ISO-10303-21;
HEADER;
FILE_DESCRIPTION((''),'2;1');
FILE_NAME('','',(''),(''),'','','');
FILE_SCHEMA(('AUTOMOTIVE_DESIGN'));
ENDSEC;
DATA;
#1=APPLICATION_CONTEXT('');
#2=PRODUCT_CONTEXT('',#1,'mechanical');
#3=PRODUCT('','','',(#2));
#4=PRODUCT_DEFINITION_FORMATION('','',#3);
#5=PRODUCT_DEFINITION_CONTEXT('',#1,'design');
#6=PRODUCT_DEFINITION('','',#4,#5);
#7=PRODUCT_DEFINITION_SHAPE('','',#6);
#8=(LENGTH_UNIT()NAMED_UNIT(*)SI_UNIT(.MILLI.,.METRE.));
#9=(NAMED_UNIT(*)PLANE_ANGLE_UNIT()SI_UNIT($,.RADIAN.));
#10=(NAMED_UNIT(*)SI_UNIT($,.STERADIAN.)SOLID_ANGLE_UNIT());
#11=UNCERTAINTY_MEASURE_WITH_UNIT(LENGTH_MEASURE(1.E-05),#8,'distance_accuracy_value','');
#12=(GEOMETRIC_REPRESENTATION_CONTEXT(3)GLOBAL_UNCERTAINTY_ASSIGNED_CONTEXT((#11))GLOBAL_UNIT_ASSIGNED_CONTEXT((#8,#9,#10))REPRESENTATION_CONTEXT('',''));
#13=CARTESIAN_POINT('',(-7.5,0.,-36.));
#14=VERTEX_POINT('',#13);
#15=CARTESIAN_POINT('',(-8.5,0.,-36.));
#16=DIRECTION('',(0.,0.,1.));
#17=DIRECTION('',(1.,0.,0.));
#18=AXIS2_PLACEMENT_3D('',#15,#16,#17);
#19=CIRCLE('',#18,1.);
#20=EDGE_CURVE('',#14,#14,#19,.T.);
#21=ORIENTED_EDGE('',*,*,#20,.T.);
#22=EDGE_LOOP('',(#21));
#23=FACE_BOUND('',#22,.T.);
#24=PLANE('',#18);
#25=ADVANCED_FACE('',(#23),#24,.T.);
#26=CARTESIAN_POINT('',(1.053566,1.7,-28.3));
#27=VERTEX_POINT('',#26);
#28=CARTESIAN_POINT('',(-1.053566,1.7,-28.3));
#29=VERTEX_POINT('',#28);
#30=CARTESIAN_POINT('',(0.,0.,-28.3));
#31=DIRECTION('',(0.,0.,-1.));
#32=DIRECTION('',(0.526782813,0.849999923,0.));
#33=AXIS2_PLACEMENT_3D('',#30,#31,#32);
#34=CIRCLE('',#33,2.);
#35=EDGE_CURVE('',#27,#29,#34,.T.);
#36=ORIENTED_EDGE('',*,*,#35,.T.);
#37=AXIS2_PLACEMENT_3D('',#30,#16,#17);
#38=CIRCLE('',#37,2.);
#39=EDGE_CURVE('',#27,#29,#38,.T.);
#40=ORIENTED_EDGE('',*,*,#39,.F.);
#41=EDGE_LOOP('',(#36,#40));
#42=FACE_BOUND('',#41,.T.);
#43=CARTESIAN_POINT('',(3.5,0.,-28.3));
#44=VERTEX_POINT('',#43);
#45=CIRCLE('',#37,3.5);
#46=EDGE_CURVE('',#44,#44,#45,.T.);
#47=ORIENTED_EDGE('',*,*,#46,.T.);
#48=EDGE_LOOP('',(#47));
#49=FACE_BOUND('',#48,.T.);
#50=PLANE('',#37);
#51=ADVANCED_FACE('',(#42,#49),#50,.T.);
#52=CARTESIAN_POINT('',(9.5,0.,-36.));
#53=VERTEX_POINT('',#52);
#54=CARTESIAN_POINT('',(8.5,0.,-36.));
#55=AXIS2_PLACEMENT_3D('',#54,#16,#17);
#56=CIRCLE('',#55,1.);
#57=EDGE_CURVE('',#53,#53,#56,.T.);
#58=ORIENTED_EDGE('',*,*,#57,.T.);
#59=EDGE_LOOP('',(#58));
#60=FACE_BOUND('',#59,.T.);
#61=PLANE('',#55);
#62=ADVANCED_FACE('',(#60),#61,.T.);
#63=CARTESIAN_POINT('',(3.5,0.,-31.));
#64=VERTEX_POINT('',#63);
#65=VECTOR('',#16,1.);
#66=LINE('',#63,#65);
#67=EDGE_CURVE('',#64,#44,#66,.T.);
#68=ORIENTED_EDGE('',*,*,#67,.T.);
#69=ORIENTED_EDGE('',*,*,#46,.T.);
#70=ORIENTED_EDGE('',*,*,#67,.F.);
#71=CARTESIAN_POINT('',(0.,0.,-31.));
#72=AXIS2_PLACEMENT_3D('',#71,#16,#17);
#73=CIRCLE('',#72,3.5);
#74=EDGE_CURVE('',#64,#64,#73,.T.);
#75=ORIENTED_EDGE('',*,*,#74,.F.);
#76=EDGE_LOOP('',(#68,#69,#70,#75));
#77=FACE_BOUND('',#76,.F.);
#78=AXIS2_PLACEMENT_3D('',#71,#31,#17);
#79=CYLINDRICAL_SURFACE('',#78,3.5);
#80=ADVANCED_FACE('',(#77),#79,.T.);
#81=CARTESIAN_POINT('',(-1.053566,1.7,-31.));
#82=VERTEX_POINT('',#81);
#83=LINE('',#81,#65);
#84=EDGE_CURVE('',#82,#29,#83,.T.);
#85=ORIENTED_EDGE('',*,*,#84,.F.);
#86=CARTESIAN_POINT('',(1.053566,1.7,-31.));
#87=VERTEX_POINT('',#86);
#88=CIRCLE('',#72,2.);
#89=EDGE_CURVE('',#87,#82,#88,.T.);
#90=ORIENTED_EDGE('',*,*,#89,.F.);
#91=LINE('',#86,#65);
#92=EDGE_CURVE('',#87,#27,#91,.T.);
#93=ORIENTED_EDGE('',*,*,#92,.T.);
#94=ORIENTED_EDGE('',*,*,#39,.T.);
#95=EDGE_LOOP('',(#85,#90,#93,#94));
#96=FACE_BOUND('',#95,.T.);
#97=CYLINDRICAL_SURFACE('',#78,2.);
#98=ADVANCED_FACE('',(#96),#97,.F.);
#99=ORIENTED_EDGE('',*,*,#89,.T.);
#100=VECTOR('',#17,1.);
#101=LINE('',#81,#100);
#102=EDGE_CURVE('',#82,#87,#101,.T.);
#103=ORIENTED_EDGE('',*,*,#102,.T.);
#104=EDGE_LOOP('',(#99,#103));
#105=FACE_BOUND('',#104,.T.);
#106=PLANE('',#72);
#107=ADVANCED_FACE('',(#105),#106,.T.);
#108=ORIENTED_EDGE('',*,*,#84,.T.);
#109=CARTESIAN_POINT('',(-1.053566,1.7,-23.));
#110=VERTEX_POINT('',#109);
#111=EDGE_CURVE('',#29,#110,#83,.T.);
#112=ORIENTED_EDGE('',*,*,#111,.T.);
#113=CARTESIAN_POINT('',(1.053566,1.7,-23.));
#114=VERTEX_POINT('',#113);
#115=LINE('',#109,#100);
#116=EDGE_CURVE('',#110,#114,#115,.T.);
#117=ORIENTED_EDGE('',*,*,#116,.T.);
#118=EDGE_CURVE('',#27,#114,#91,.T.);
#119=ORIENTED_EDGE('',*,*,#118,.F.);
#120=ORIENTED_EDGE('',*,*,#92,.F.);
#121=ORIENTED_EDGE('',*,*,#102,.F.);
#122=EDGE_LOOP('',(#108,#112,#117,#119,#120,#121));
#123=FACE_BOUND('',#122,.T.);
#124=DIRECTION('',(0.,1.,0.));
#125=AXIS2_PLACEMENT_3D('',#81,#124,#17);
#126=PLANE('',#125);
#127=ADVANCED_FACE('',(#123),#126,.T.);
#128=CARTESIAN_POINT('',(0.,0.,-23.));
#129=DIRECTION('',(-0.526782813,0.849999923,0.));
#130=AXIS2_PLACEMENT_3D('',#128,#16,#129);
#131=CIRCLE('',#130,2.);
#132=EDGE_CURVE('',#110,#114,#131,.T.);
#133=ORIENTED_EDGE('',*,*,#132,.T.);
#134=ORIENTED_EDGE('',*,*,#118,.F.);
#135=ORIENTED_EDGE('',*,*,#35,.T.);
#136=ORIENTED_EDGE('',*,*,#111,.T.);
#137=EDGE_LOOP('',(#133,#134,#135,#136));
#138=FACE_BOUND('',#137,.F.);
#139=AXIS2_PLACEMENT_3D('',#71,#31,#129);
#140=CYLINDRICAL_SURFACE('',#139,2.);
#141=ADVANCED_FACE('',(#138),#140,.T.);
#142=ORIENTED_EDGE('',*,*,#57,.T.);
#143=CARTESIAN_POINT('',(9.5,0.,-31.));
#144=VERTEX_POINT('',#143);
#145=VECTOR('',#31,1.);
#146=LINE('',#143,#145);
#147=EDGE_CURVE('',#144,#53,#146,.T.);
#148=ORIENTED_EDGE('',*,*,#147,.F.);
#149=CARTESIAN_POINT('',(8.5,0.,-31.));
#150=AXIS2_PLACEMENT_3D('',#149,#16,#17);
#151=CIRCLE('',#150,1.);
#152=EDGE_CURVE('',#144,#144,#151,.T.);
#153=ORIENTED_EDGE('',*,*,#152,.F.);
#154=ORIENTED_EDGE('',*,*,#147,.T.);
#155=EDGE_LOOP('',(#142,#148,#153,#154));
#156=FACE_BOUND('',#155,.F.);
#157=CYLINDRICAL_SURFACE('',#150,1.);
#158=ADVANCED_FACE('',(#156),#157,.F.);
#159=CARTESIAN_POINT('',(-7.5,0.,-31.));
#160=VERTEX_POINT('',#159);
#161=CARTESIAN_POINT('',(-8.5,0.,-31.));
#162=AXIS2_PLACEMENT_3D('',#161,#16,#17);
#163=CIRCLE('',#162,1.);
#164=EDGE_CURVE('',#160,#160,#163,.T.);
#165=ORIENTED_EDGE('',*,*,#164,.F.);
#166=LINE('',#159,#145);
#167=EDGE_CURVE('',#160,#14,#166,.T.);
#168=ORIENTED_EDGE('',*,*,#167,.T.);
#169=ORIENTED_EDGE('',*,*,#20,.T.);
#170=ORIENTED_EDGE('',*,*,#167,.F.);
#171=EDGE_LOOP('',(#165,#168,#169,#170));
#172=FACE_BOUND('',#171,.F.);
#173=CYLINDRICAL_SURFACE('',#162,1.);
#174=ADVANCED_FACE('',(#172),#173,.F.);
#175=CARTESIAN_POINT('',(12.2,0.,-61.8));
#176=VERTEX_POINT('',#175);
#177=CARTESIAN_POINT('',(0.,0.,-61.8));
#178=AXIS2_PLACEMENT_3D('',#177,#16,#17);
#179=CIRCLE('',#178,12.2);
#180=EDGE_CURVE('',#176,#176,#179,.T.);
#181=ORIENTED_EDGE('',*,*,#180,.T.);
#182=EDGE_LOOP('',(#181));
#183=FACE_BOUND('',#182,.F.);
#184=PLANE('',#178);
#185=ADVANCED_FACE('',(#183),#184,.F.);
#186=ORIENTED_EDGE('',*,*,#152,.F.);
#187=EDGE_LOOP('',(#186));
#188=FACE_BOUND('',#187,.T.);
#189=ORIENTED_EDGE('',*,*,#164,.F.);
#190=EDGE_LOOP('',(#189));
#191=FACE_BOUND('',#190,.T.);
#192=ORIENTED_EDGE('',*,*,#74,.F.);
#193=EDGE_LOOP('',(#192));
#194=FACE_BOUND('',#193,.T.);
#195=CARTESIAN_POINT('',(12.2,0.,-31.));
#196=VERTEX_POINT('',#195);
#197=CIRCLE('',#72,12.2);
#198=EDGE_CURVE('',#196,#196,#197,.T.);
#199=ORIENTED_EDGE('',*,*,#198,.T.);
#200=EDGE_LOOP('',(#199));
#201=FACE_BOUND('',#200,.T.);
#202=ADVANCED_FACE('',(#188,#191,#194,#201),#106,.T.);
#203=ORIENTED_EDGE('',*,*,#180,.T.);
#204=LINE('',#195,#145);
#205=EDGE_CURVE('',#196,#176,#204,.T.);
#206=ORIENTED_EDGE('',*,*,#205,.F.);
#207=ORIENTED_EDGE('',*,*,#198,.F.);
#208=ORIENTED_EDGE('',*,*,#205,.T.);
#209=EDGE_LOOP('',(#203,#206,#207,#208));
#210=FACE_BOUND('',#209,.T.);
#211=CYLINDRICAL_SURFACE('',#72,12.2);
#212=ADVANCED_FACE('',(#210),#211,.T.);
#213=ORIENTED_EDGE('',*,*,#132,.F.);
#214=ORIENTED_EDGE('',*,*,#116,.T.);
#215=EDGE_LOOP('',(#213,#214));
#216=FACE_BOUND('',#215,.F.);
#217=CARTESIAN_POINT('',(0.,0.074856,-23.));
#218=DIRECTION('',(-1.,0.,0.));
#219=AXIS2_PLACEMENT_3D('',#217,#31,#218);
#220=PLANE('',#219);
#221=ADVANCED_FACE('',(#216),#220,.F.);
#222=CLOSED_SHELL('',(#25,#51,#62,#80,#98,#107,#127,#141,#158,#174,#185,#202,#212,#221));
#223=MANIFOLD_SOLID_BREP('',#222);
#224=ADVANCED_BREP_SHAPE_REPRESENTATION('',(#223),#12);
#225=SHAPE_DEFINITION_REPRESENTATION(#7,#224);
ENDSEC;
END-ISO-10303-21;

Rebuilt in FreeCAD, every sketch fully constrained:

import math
import FreeCAD as App
import Part
import Sketcher
from FreeCAD import Vector

doc = App.newDocument("Part")
body = doc.addObject("PartDesign::Body", "Body")

sketch1 = doc.addObject("Sketcher::SketchObject", "Sketch")
body.addObject(sketch1)
sketch1.AttachmentSupport = (doc.XY_Plane, [""])
sketch1.MapMode = "FlatFace"
sketch1.addGeometry(Part.Circle(Vector(0, 0, 0), Vector(0, 0, 1), 12), False)
sketch1.addConstraint([
    Sketcher.Constraint("Coincident", 0, 3, -1, 1),
    Sketcher.Constraint("Diameter", 0, 24.4),
])
pad1 = doc.addObject("PartDesign::Pad", "Pad")
body.addObject(pad1)
pad1.Profile = sketch1
pad1.Length = 30.8
pad1.Reversed = True

sketch2 = doc.addObject("Sketcher::SketchObject", "Sketch001")
body.addObject(sketch2)
sketch2.AttachmentSupport = (doc.XY_Plane, [""])
sketch2.MapMode = "FlatFace"
sketch2.addGeometry([
    Part.LineSegment(Vector(1.1, 1.7, 0), Vector(-1.1, 1.7, 0)),
    Part.ArcOfCircle(Part.Circle(Vector(0, 0, 0), Vector(0, 0, 1), 2), math.radians(122), math.radians(418)),
], False)
sketch2.addConstraint([
    Sketcher.Constraint("Coincident", 0, 1, 1, 2),
    Sketcher.Constraint("Coincident", 1, 1, 0, 2),
    Sketcher.Constraint("Horizontal", 0),
    Sketcher.Constraint("Coincident", 1, 3, -1, 1),
    Sketcher.Constraint("Radius", 1, 2.0),
    Sketcher.Constraint("DistanceY", -1, 1, 0, 1, 1.7),
])
pad2 = doc.addObject("PartDesign::Pad", "Pad001")
body.addObject(pad2)
pad2.Profile = sketch2
pad2.Length = 8

sketch3 = doc.addObject("Sketcher::SketchObject", "Sketch002")
body.addObject(sketch3)
sketch3.AttachmentSupport = (doc.XY_Plane, [""])
sketch3.MapMode = "FlatFace"
sketch3.addGeometry([
    Part.Circle(Vector(-8.5, 0, 0), Vector(0, 0, 1), 1),
    Part.Circle(Vector(8.5, 0, 0), Vector(0, 0, 1), 1),
], False)
sketch3.addConstraint([
    Sketcher.Constraint("Equal", 0, 1),
    Sketcher.Constraint("Symmetric", 0, 3, 1, 3, -1, 1),
    Sketcher.Constraint("PointOnObject", 0, 3, -1),
    Sketcher.Constraint("Diameter", 0, 2.0),
    Sketcher.Constraint("DistanceX", 0, 3, 1, 3, 17.0),
])
pocket1 = doc.addObject("PartDesign::Pocket", "Pocket")
body.addObject(pocket1)
pocket1.Profile = sketch3
pocket1.Length = 5

sketch4 = doc.addObject("Sketcher::SketchObject", "Sketch003")
body.addObject(sketch4)
sketch4.AttachmentSupport = (doc.XY_Plane, [""])
sketch4.MapMode = "FlatFace"
sketch4.addGeometry([
    Part.Circle(Vector(0, 0, 0), Vector(0, 0, 1), 3.5),
    Part.Circle(Vector(0, 0, 0), Vector(0, 0, 1), 2),
], False)
sketch4.addConstraint([
    Sketcher.Constraint("Coincident", 0, 3, -1, 1),
    Sketcher.Constraint("Coincident", 1, 3, -1, 1),
    Sketcher.Constraint("Diameter", 0, 7.0),
    Sketcher.Constraint("Diameter", 1, 4.0),
])
pad3 = doc.addObject("PartDesign::Pad", "Pad002")
body.addObject(pad3)
pad3.Profile = sketch4
pad3.Length = 2.7
body2 = doc.addObject("PartDesign::Body", "Body001")
doc.recompute()

body.Placement = App.Placement(Vector(0, 0, -31), App.Rotation(Vector(0, 0, 1), 0))
boolean = doc.addObject("PartDesign::Boolean", "Boolean")
body2.addObject(boolean)
boolean.Type = "Fuse"
boolean.addObjects([body])

doc.recompute()
